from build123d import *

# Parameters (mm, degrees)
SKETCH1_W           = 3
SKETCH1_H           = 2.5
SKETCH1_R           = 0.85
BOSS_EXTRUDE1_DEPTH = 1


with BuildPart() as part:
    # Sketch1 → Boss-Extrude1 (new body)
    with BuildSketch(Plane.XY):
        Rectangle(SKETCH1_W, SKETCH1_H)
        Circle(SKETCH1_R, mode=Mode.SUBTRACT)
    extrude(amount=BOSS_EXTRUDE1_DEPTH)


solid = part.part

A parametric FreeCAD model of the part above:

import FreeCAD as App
import Part
import Sketcher


def add_polygon(sketch, points):
    """Adds a closed chain of lines whose ends are joined by coincident constraints."""
    first, n = sketch.GeometryCount, len(points)
    for a, b in zip(points, points[1:] + points[:1]):
        sketch.addGeometry(Part.LineSegment(App.Vector(*a, 0), App.Vector(*b, 0)), False)
    for i in range(n):
        sketch.addConstraint(Sketcher.Constraint("Coincident", first + i, 2, first + (i + 1) % n, 1))

doc = App.newDocument("Part")
params = doc.addObject("Spreadsheet::Sheet", "Params")
for row, (alias, value) in enumerate([
    ("sketch1_diameter", "1.7 mm"),
    ("sketch1_width", "3 mm"),
    ("sketch1_height", "2.5 mm"),
    ("pad1_length", "1 mm"),
], start=1):
    params.set(f"A{row}", alias)
    params.set(f"B{row}", "=" + value)
    params.setAlias(f"B{row}", alias)

body = doc.addObject("PartDesign::Body", "Body")

sketch1 = body.newObject("Sketcher::SketchObject", "Sketch")
sketch1.AttachmentSupport = (doc.getObject("XY_Plane"), [""])
sketch1.MapMode = "FlatFace"
add_polygon(sketch1, [(-1.5, 1.2), (-1.5, -1.2), (1.5, -1.2), (1.5, 1.2)])
sketch1.addGeometry(Part.Circle(App.Vector(0, 0, 0), App.Vector(0, 0, 1), 0.8), False)
sketch1.addConstraint([
    Sketcher.Constraint("Vertical", 0),
    Sketcher.Constraint("Horizontal", 1),
    Sketcher.Constraint("Vertical", 2),
    Sketcher.Constraint("Horizontal", 3),
    Sketcher.Constraint("Coincident", 4, 3, -1, 1),
    Sketcher.Constraint("Symmetric", 0, 2, 2, 2, -1, 1),
    Sketcher.Constraint("Diameter", 4, 1.7),
    Sketcher.Constraint("DistanceX", 1, 1, 1, 2, 3.0),
    Sketcher.Constraint("DistanceY", 0, 2, 0, 1, 2.5),
])
sketch1.setExpression("Constraints[10]", "Params.sketch1_diameter")
sketch1.setExpression("Constraints[11]", "Params.sketch1_width")
sketch1.setExpression("Constraints[12]", "Params.sketch1_height")
pad1 = body.newObject("PartDesign::Pad", "Pad")
pad1.Profile = sketch1
pad1.setExpression("Length", "Params.pad1_length")

doc.recompute()
